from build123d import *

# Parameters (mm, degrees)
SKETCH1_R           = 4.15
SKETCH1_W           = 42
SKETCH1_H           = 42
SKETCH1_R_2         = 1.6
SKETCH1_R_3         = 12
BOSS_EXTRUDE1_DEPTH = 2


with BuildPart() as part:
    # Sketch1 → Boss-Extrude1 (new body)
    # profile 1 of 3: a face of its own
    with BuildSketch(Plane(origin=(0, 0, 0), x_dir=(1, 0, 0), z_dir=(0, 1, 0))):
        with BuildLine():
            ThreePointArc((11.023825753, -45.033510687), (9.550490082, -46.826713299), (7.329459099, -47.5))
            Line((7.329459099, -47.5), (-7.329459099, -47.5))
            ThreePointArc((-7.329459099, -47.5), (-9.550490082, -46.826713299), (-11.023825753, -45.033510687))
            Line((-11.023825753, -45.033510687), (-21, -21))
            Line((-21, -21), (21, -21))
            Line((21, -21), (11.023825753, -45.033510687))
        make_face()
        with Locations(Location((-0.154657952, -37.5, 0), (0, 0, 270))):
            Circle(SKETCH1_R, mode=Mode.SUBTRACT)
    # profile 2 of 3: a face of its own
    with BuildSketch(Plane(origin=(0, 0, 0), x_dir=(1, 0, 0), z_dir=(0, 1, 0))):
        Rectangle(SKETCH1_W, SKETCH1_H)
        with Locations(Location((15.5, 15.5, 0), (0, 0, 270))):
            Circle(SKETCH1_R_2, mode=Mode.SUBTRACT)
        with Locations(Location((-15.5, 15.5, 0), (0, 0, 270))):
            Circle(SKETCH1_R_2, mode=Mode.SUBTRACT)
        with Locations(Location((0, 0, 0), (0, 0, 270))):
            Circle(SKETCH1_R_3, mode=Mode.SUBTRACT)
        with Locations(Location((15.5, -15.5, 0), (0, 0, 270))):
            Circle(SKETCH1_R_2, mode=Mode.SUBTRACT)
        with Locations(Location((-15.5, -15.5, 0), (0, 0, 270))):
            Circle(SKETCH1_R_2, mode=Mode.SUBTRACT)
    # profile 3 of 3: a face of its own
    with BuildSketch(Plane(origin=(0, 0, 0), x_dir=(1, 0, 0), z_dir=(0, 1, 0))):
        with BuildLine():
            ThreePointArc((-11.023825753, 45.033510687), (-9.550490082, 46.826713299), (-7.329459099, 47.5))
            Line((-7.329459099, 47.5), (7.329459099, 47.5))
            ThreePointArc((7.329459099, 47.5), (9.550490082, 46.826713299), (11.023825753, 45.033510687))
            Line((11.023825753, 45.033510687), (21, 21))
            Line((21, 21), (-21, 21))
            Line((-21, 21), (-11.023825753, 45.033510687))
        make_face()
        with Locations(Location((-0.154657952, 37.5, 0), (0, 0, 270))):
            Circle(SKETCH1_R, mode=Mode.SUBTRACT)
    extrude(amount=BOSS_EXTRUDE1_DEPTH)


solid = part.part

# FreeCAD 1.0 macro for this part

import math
import FreeCAD as App
import Part
import Sketcher

doc = App.newDocument("Part")
body = doc.addObject("PartDesign::Body", "Body")

sketch1 = body.newObject("Sketcher::SketchObject", "Sketch")
sketch1.AttachmentSupport = (doc.getObject("XZ_Plane"), [""])
sketch1.MapMode = "FlatFace"
sketch1.addGeometry(Part.ArcOfCircle(Part.Circle(App.Vector(7.3, 43.5, 0), App.Vector(0, 0, 1), 4), math.radians(23), math.radians(90)), False)
sketch1.addGeometry(Part.LineSegment(App.Vector(11, 45, 0), App.Vector(21, 21, 0)), False)
sketch1.addGeometry(Part.LineSegment(App.Vector(21, 21, 0), App.Vector(21, -21, 0)), False)
sketch1.addGeometry(Part.LineSegment(App.Vector(21, -21, 0), App.Vector(11, -45, 0)), False)
sketch1.addGeometry(Part.ArcOfCircle(Part.Circle(App.Vector(7.3, -43.5, 0), App.Vector(0, 0, 1), 4), math.radians(-90), math.radians(-23)), False)
sketch1.addGeometry(Part.LineSegment(App.Vector(7.3, -47.5, 0), App.Vector(-7.3, -47.5, 0)), False)
sketch1.addGeometry(Part.ArcOfCircle(Part.Circle(App.Vector(-7.3, -43.5, 0), App.Vector(0, 0, 1), 4), math.radians(-157), math.radians(-90)), False)
sketch1.addGeometry(Part.LineSegment(App.Vector(-11, -45, 0), App.Vector(-21, -21, 0)), False)
sketch1.addGeometry(Part.LineSegment(App.Vector(-21, -21, 0), App.Vector(-21, 21, 0)), False)
sketch1.addGeometry(Part.LineSegment(App.Vector(-21, 21, 0), App.Vector(-11, 45, 0)), False)
sketch1.addGeometry(Part.ArcOfCircle(Part.Circle(App.Vector(-7.3, 43.5, 0), App.Vector(0, 0, 1), 4), math.radians(90), math.radians(157)), False)
sketch1.addGeometry(Part.LineSegment(App.Vector(-7.3, 47.5, 0), App.Vector(7.3, 47.5, 0)), False)
sketch1.addGeometry(Part.Circle(App.Vector(-0.2, 37.5, 0), App.Vector(0, 0, 1), 4.2), False)
sketch1.addGeometry(Part.Circle(App.Vector(15.5, -15.5, 0), App.Vector(0, 0, 1), 1.6), False)
sketch1.addGeometry(Part.Circle(App.Vector(-15.5, 15.5, 0), App.Vector(0, 0, 1), 1.6), False)
sketch1.addGeometry(Part.Circle(App.Vector(15.5, 15.5, 0), App.Vector(0, 0, 1), 1.6), False)
sketch1.addGeometry(Part.Circle(App.Vector(-15.5, -15.5, 0), App.Vector(0, 0, 1), 1.6), False)
sketch1.addGeometry(Part.Circle(App.Vector(0, 0, 0), App.Vector(0, 0, 1), 12), False)
sketch1.addGeometry(Part.Circle(App.Vector(-0.2, -37.5, 0), App.Vector(0, 0, 1), 4.2), False)
sketch1.addConstraint(Sketcher.Constraint("Tangent", 0, 1, 1, 1))
sketch1.addConstraint(Sketcher.Constraint("Coincident", 1, 2, 2, 1))
sketch1.addConstraint(Sketcher.Constraint("Coincident", 2, 2, 3, 1))
sketch1.addConstraint(Sketcher.Constraint("Tangent", 3, 2, 4, 2))
sketch1.addConstraint(Sketcher.Constraint("Tangent", 4, 1, 5, 1))
sketch1.addConstraint(Sketcher.Constraint("Tangent", 5, 2, 6, 2))
sketch1.addConstraint(Sketcher.Constraint("Tangent", 6, 1, 7, 1))
sketch1.addConstraint(Sketcher.Constraint("Coincident", 7, 2, 8, 1))
sketch1.addConstraint(Sketcher.Constraint("Coincident", 8, 2, 9, 1))
sketch1.addConstraint(Sketcher.Constraint("Tangent", 9, 2, 10, 2))
sketch1.addConstraint(Sketcher.Constraint("Tangent", 10, 1, 11, 1))
sketch1.addConstraint(Sketcher.Constraint("Tangent", 11, 2, 0, 2))
sketch1.addConstraint(Sketcher.Constraint("Vertical", 2))
sketch1.addConstraint(Sketcher.Constraint("Horizontal", 5))
sketch1.addConstraint(Sketcher.Constraint("Vertical", 8))
sketch1.addConstraint(Sketcher.Constraint("Horizontal", 11))
sketch1.addConstraint(Sketcher.Constraint("Coincident", 17, 3, -1, 1))
sketch1.addConstraint(Sketcher.Constraint("Equal", 0, 4))
sketch1.addConstraint(Sketcher.Constraint("Equal", 4, 6))
sketch1.addConstraint(Sketcher.Constraint("Equal", 6, 10))
sketch1.addConstraint(Sketcher.Constraint("Equal", 13, 14))
sketch1.addConstraint(Sketcher.Constraint("Equal", 14, 15))
sketch1.addConstraint(Sketcher.Constraint("Equal", 15, 16))
sketch1.addConstraint(Sketcher.Constraint("Equal", 12, 18))
sketch1.addConstraint(Sketcher.Constraint("Symmetric", 0, 3, 6, 3, -1, 1))
sketch1.addConstraint(Sketcher.Constraint("Symmetric", 13, 3, 14, 3, -1, 1))
sketch1.addConstraint(Sketcher.Constraint("Symmetric", 15, 3, 16, 3, -1, 1))
sketch1.addConstraint(Sketcher.Constraint("Symmetric", 1, 2, 7, 2, -1, 1))
sketch1.addConstraint(Sketcher.Constraint("Symmetric", 3, 2, 9, 2, -1, 1))
sketch1.addConstraint(Sketcher.Constraint("Symmetric", 14, 3, 15, 3, -2))
sketch1.addConstraint(Sketcher.Constraint("Symmetric", 3, 2, 6, 1, -2))
sketch1.addConstraint(Sketcher.Constraint("Symmetric", 12, 3, 18, 3, -1))
sketch1.addConstraint(Sketcher.Constraint("Diameter", 17, 24.0))
sketch1.addConstraint(Sketcher.Constraint("Radius", 0, 4.0))
sketch1.addConstraint(Sketcher.Constraint("Diameter", 12, 8.3))
sketch1.addConstraint(Sketcher.Constraint("Diameter", 13, 3.2))
sketch1.addConstraint(Sketcher.Constraint("DistanceY", 2, 2, 2, 1, 42.0))
sketch1.addConstraint(Sketcher.Constraint("DistanceX", -1, 1, 1, 2, 21.0))
sketch1.addConstraint(Sketcher.Constraint("DistanceY", 4, 3, 0, 3, 87.0))
sketch1.addConstraint(Sketcher.Constraint("DistanceY", 12, 3, 10, 3, 6.0))
sketch1.addConstraint(Sketcher.Constraint("DistanceY", 4, 3, 13, 3, 28.0))
sketch1.addConstraint(Sketcher.Constraint("DistanceX", 14, 3, 13, 3, 31.0))
sketch1.addConstraint(Sketcher.Constraint("DistanceX", 5, 2, 5, 1, 14.658918))
sketch1.addConstraint(Sketcher.Constraint("DistanceX", 10, 3, 12, 3, 7.174801))
pad1 = body.newObject("PartDesign::Pad", "Pad")
pad1.Profile = sketch1
pad1.Length = 2
pad1.Reversed = True

doc.recompute()
